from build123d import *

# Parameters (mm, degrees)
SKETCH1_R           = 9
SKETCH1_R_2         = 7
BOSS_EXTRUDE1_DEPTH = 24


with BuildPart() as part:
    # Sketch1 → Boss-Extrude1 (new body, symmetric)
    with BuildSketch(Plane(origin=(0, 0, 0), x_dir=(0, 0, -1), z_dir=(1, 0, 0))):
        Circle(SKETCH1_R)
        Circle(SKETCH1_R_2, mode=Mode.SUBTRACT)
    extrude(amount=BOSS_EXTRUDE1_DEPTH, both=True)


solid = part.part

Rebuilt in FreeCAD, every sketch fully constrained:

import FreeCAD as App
import Part
import Sketcher

V = App.Vector
Q = App.Units.Quantity

doc = App.newDocument("Part")
body = doc.addObject("PartDesign::Body", "Body")

sketch1 = doc.addObject("Sketcher::SketchObject", "Sketch")
body.addObject(sketch1)
sketch1.AttachmentSupport = (doc.YZ_Plane, [""])
sketch1.MapMode = "FlatFace"
sketch1.addGeometry(Part.Circle(V(0, 0, 0), V(0, 0, 1), 9), False)
sketch1.addGeometry(Part.Circle(V(0, 0, 0), V(0, 0, 1), 7), False)
sketch1.addConstraint(Sketcher.Constraint("Coincident", 0, 3, -1, 1))
sketch1.addConstraint(Sketcher.Constraint("Coincident", 1, 3, -1, 1))
sketch1.addConstraint(Sketcher.Constraint("Diameter", 0, Q("18 mm")))
sketch1.addConstraint(Sketcher.Constraint("Diameter", 1, Q("14 mm")))
pad1 = doc.addObject("PartDesign::Pad", "Pad")
body.addObject(pad1)
pad1.Profile = sketch1
pad1.Length = 48
pad1.Midplane = True

doc.recompute()
